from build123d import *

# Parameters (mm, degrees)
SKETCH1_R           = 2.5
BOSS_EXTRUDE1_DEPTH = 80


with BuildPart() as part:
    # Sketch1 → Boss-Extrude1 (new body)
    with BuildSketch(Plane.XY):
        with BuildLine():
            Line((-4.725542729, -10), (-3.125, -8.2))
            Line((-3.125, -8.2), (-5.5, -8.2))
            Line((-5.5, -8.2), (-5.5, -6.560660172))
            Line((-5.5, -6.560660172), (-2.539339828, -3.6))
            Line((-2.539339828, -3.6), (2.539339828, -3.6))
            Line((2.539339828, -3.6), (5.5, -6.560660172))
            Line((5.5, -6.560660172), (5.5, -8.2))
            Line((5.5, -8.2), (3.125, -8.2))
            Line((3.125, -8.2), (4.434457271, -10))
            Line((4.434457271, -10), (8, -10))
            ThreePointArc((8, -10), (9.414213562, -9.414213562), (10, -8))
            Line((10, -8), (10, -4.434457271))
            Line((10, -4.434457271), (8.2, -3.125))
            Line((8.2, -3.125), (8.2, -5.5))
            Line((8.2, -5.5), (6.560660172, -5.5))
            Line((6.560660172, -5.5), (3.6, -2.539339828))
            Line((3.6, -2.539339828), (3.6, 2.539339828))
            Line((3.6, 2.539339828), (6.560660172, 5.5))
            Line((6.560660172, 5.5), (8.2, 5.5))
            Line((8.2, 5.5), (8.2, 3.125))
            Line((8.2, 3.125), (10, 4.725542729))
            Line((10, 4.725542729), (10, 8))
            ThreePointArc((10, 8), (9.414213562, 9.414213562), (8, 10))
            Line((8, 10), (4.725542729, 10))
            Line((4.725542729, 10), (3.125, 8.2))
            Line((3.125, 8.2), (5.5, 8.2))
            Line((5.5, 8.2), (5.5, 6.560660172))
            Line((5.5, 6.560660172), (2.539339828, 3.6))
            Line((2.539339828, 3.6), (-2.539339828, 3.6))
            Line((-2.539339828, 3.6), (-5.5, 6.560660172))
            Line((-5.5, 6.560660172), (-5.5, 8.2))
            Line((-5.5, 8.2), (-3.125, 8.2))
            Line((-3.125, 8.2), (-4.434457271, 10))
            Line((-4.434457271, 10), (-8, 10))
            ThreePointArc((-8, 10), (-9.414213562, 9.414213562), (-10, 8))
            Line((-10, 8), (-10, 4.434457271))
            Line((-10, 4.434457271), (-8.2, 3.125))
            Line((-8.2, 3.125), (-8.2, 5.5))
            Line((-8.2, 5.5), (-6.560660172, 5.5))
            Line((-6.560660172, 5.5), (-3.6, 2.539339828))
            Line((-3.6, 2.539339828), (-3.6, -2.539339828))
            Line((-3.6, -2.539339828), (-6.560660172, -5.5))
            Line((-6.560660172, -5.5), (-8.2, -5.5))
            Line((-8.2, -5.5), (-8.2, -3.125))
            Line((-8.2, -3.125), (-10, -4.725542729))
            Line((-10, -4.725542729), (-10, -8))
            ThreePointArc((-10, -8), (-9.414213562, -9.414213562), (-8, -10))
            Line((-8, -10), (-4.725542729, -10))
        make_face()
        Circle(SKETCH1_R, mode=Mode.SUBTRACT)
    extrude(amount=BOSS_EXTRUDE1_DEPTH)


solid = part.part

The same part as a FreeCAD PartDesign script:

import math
import FreeCAD as App
import Part
import Sketcher

V = App.Vector

doc = App.newDocument("Part")
body = doc.addObject("PartDesign::Body", "Body")

# Sketch on XY plane
sketch1 = body.newObject("Sketcher::SketchObject", "Sketch")
sketch1.AttachmentSupport = (doc.getObject("XY_Plane"), [""])
sketch1.MapMode = "FlatFace"
sketch1.addGeometry([
    Part.LineSegment(V(-4.7, -10, 0), V(-3.1, -8.2, 0)),  # 0
    Part.LineSegment(V(-3.1, -8.2, 0), V(-5.5, -8.2, 0)),  # 1
    Part.LineSegment(V(-5.5, -8.2, 0), V(-5.5, -6.6, 0)),  # 2
    Part.LineSegment(V(-5.5, -6.6, 0), V(-2.5, -3.6, 0)),  # 3
    Part.LineSegment(V(-2.5, -3.6, 0), V(2.5, -3.6, 0)),  # 4
    Part.LineSegment(V(2.5, -3.6, 0), V(5.5, -6.6, 0)),  # 5
    Part.LineSegment(V(5.5, -6.6, 0), V(5.5, -8.2, 0)),  # 6
    Part.LineSegment(V(5.5, -8.2, 0), V(3.1, -8.2, 0)),  # 7
    Part.LineSegment(V(3.1, -8.2, 0), V(4.4, -10, 0)),  # 8
    Part.LineSegment(V(4.4, -10, 0), V(8, -10, 0)),  # 9
    Part.ArcOfCircle(Part.Circle(V(8, -8, 0), V(0, 0, 1), 2), math.radians(-90), math.radians(0)),  # 10
    Part.LineSegment(V(10, -8, 0), V(10, -4.4, 0)),  # 11
    Part.LineSegment(V(10, -4.4, 0), V(8.2, -3.1, 0)),  # 12
    Part.LineSegment(V(8.2, -3.1, 0), V(8.2, -5.5, 0)),  # 13
    Part.LineSegment(V(8.2, -5.5, 0), V(6.6, -5.5, 0)),  # 14
    Part.LineSegment(V(6.6, -5.5, 0), V(3.6, -2.5, 0)),  # 15
    Part.LineSegment(V(3.6, -2.5, 0), V(3.6, 2.5, 0)),  # 16
    Part.LineSegment(V(3.6, 2.5, 0), V(6.6, 5.5, 0)),  # 17
    Part.LineSegment(V(6.6, 5.5, 0), V(8.2, 5.5, 0)),  # 18
    Part.LineSegment(V(8.2, 5.5, 0), V(8.2, 3.1, 0)),  # 19
    Part.LineSegment(V(8.2, 3.1, 0), V(10, 4.7, 0)),  # 20
    Part.LineSegment(V(10, 4.7, 0), V(10, 8, 0)),  # 21
    Part.ArcOfCircle(Part.Circle(V(8, 8, 0), V(0, 0, 1), 2), math.radians(0), math.radians(90)),  # 22
    Part.LineSegment(V(8, 10, 0), V(4.7, 10, 0)),  # 23
    Part.LineSegment(V(4.7, 10, 0), V(3.1, 8.2, 0)),  # 24
    Part.LineSegment(V(3.1, 8.2, 0), V(5.5, 8.2, 0)),  # 25
    Part.LineSegment(V(5.5, 8.2, 0), V(5.5, 6.6, 0)),  # 26
    Part.LineSegment(V(5.5, 6.6, 0), V(2.5, 3.6, 0)),  # 27
    Part.LineSegment(V(2.5, 3.6, 0), V(-2.5, 3.6, 0)),  # 28
    Part.LineSegment(V(-2.5, 3.6, 0), V(-5.5, 6.6, 0)),  # 29
    Part.LineSegment(V(-5.5, 6.6, 0), V(-5.5, 8.2, 0)),  # 30
    Part.LineSegment(V(-5.5, 8.2, 0), V(-3.1, 8.2, 0)),  # 31
    Part.LineSegment(V(-3.1, 8.2, 0), V(-4.4, 10, 0)),  # 32
    Part.LineSegment(V(-4.4, 10, 0), V(-8, 10, 0)),  # 33
    Part.ArcOfCircle(Part.Circle(V(-8, 8, 0), V(0, 0, 1), 2), math.radians(90), math.radians(180)),  # 34
    Part.LineSegment(V(-10, 8, 0), V(-10, 4.4, 0)),  # 35
    Part.LineSegment(V(-10, 4.4, 0), V(-8.2, 3.1, 0)),  # 36
    Part.LineSegment(V(-8.2, 3.1, 0), V(-8.2, 5.5, 0)),  # 37
    Part.LineSegment(V(-8.2, 5.5, 0), V(-6.6, 5.5, 0)),  # 38
    Part.LineSegment(V(-6.6, 5.5, 0), V(-3.6, 2.5, 0)),  # 39
    Part.LineSegment(V(-3.6, 2.5, 0), V(-3.6, -2.5, 0)),  # 40
    Part.LineSegment(V(-3.6, -2.5, 0), V(-6.6, -5.5, 0)),  # 41
    Part.LineSegment(V(-6.6, -5.5, 0), V(-8.2, -5.5, 0)),  # 42
    Part.LineSegment(V(-8.2, -5.5, 0), V(-8.2, -3.1, 0)),  # 43
    Part.LineSegment(V(-8.2, -3.1, 0), V(-10, -4.7, 0)),  # 44
    Part.LineSegment(V(-10, -4.7, 0), V(-10, -8, 0)),  # 45
    Part.ArcOfCircle(Part.Circle(V(-8, -8, 0), V(0, 0, 1), 2), math.radians(-180), math.radians(-90)),  # 46
    Part.LineSegment(V(-8, -10, 0), V(-4.7, -10, 0)),  # 47
    Part.Circle(V(0, 0, 0), V(0, 0, 1), 2.5),  # 48
], False)
sketch1.addConstraint([
    Sketcher.Constraint("Coincident", 0, 2, 1, 1),
    Sketcher.Constraint("Coincident", 1, 2, 2, 1),
    Sketcher.Constraint("Coincident", 2, 2, 3, 1),
    Sketcher.Constraint("Coincident", 3, 2, 4, 1),
    Sketcher.Constraint("Coincident", 4, 2, 5, 1),
    Sketcher.Constraint("Coincident", 5, 2, 6, 1),
    Sketcher.Constraint("Coincident", 6, 2, 7, 1),
    Sketcher.Constraint("Coincident", 7, 2, 8, 1),
    Sketcher.Constraint("Coincident", 8, 2, 9, 1),
    Sketcher.Constraint("Tangent", 9, 2, 10, 1),
    Sketcher.Constraint("Tangent", 10, 2, 11, 1),
    Sketcher.Constraint("Coincident", 11, 2, 12, 1),
    Sketcher.Constraint("Coincident", 12, 2, 13, 1),
    Sketcher.Constraint("Coincident", 13, 2, 14, 1),
    Sketcher.Constraint("Coincident", 14, 2, 15, 1),
    Sketcher.Constraint("Coincident", 15, 2, 16, 1),
    Sketcher.Constraint("Coincident", 16, 2, 17, 1),
    Sketcher.Constraint("Coincident", 17, 2, 18, 1),
    Sketcher.Constraint("Coincident", 18, 2, 19, 1),
    Sketcher.Constraint("Coincident", 19, 2, 20, 1),
    Sketcher.Constraint("Coincident", 20, 2, 21, 1),
    Sketcher.Constraint("Tangent", 21, 2, 22, 1),
    Sketcher.Constraint("Tangent", 22, 2, 23, 1),
    Sketcher.Constraint("Coincident", 23, 2, 24, 1),
    Sketcher.Constraint("Coincident", 24, 2, 25, 1),
    Sketcher.Constraint("Coincident", 25, 2, 26, 1),
    Sketcher.Constraint("Coincident", 26, 2, 27, 1),
    Sketcher.Constraint("Coincident", 27, 2, 28, 1),
    Sketcher.Constraint("Coincident", 28, 2, 29, 1),
    Sketcher.Constraint("Coincident", 29, 2, 30, 1),
    Sketcher.Constraint("Coincident", 30, 2, 31, 1),
    Sketcher.Constraint("Coincident", 31, 2, 32, 1),
    Sketcher.Constraint("Coincident", 32, 2, 33, 1),
    Sketcher.Constraint("Tangent", 33, 2, 34, 1),
    Sketcher.Constraint("Tangent", 34, 2, 35, 1),
    Sketcher.Constraint("Coincident", 35, 2, 36, 1),
    Sketcher.Constraint("Coincident", 36, 2, 37, 1),
    Sketcher.Constraint("Coincident", 37, 2, 38, 1),
    Sketcher.Constraint("Coincident", 38, 2, 39, 1),
    Sketcher.Constraint("Coincident", 39, 2, 40, 1),
    Sketcher.Constraint("Coincident", 40, 2, 41, 1),
    Sketcher.Constraint("Coincident", 41, 2, 42, 1),
    Sketcher.Constraint("Coincident", 42, 2, 43, 1),
    Sketcher.Constraint("Coincident", 43, 2, 44, 1),
    Sketcher.Constraint("Coincident", 44, 2, 45, 1),
    Sketcher.Constraint("Tangent", 45, 2, 46, 1),
    Sketcher.Constraint("Tangent", 46, 2, 47, 1),
    Sketcher.Constraint("Coincident", 47, 2, 0, 1),
    Sketcher.Constraint("Horizontal", 1),
    Sketcher.Constraint("Vertical", 2),
    Sketcher.Constraint("Horizontal", 4),
    Sketcher.Constraint("Vertical", 6),
    Sketcher.Constraint("Horizontal", 7),
    Sketcher.Constraint("Horizontal", 9),
    Sketcher.Constraint("Vertical", 11),
    Sketcher.Constraint("Vertical", 13),
    Sketcher.Constraint("Horizontal", 14),
    Sketcher.Constraint("Vertical", 16),
    Sketcher.Constraint("Horizontal", 18),
    Sketcher.Constraint("Vertical", 19),
    Sketcher.Constraint("Vertical", 21),
    Sketcher.Constraint("Horizontal", 23),
    Sketcher.Constraint("Horizontal", 25),
    Sketcher.Constraint("Vertical", 26),
    Sketcher.Constraint("Horizontal", 28),
    Sketcher.Constraint("Vertical", 30),
    Sketcher.Constraint("Horizontal", 31),
    Sketcher.Constraint("Horizontal", 33),
    Sketcher.Constraint("Vertical", 35),
    Sketcher.Constraint("Vertical", 37),
    Sketcher.Constraint("Horizontal", 38),
    Sketcher.Constraint("Vertical", 40),
    Sketcher.Constraint("Horizontal", 42),
    Sketcher.Constraint("Vertical", 43),
    Sketcher.Constraint("Vertical", 45),
    Sketcher.Constraint("Horizontal", 47),
    Sketcher.Constraint("Coincident", 48, 3, -1, 1),
    Sketcher.Constraint("Equal", 10, 22),
    Sketcher.Constraint("Equal", 22, 34),
    Sketcher.Constraint("Equal", 34, 46),
    Sketcher.Constraint("Symmetric", 10, 3, 34, 3, -1, 1),
    Sketcher.Constraint("Symmetric", 22, 3, 46, 3, -1, 1),
    Sketcher.Constraint("Symmetric", 0, 2, 24, 2, -1, 1),
    Sketcher.Constraint("Symmetric", 2, 2, 26, 2, -1, 1),
    Sketcher.Constraint("Symmetric", 3, 2, 27, 2, -1, 1),
    Sketcher.Constraint("Symmetric", 5, 2, 29, 2, -1, 1),
    Sketcher.Constraint("Symmetric", 7, 2, 31, 2, -1, 1),
    Sketcher.Constraint("Symmetric", 12, 2, 36, 2, -1, 1),
    Sketcher.Constraint("Symmetric", 14, 2, 38, 2, -1, 1),
    Sketcher.Constraint("Symmetric", 15, 2, 39, 2, -1, 1),
    Sketcher.Constraint("Symmetric", 17, 2, 41, 2, -1, 1),
    Sketcher.Constraint("Symmetric", 19, 2, 43, 2, -1, 1),
    Sketcher.Constraint("Symmetric", 22, 3, 34, 3, -2),
    Sketcher.Constraint("Symmetric", 2, 2, 5, 2, -2),
    Sketcher.Constraint("Symmetric", 0, 2, 7, 2, -2),
    Sketcher.Constraint("Symmetric", 19, 2, 36, 2, -2),
    Sketcher.Constraint("Symmetric", 17, 2, 38, 2, -2),
    Sketcher.Constraint("Perpendicular", 3, 5),
    Sketcher.Constraint("Parallel", 5, 15),
    Sketcher.Constraint("Perpendicular", 15, 17),
    Sketcher.Constraint("Parallel", 0, 24),
    Sketcher.Constraint("Perpendicular", 27, 29),
    Sketcher.Constraint("Parallel", 8, 32),
    Sketcher.Constraint("Parallel", 12, 36),
    Sketcher.Constraint("Perpendicular", 39, 41),
    Sketcher.Constraint("Parallel", 20, 44),
    Sketcher.Constraint("Horizontal", 16, 2, 39, 2),
    Sketcher.Constraint("Equal", 42, 2),
    Sketcher.Constraint("Equal", 33, 11),
    Sketcher.Constraint("Equal", 31, 13),
    Sketcher.Constraint("Equal", 28, 16),
    Sketcher.Constraint("Equal", 47, 21),
    Sketcher.Constraint("Equal", 8, 12),
    Sketcher.Constraint("Equal", 5, 15),
    Sketcher.Constraint("Equal", 0, 20),
    Sketcher.Constraint("Diameter", 48, 5.0),
    Sketcher.Constraint("Radius", 10, 2.0),
    Sketcher.Constraint("DistanceX", -1, 1, 10, 3, 8.0),
    Sketcher.Constraint("DistanceY", 0, 2, -1, 1, 8.2),
    Sketcher.Constraint("DistanceX", 1, 2, -1, 1, 5.5),
    Sketcher.Constraint("DistanceY", 3, 2, -1, 1, 3.6),
    Sketcher.Constraint("DistanceX", 1, 2, 1, 1, 2.375),
    Sketcher.Constraint("DistanceX", 4, 1, 4, 2, 5.07868),
    Sketcher.Constraint("Distance", 0, 2.40868),
    Sketcher.Constraint("Distance", 8, 2.225911),
])
pad1 = body.newObject("PartDesign::Pad", "Pad")
pad1.Profile = sketch1
pad1.Length = 80

doc.recompute()
